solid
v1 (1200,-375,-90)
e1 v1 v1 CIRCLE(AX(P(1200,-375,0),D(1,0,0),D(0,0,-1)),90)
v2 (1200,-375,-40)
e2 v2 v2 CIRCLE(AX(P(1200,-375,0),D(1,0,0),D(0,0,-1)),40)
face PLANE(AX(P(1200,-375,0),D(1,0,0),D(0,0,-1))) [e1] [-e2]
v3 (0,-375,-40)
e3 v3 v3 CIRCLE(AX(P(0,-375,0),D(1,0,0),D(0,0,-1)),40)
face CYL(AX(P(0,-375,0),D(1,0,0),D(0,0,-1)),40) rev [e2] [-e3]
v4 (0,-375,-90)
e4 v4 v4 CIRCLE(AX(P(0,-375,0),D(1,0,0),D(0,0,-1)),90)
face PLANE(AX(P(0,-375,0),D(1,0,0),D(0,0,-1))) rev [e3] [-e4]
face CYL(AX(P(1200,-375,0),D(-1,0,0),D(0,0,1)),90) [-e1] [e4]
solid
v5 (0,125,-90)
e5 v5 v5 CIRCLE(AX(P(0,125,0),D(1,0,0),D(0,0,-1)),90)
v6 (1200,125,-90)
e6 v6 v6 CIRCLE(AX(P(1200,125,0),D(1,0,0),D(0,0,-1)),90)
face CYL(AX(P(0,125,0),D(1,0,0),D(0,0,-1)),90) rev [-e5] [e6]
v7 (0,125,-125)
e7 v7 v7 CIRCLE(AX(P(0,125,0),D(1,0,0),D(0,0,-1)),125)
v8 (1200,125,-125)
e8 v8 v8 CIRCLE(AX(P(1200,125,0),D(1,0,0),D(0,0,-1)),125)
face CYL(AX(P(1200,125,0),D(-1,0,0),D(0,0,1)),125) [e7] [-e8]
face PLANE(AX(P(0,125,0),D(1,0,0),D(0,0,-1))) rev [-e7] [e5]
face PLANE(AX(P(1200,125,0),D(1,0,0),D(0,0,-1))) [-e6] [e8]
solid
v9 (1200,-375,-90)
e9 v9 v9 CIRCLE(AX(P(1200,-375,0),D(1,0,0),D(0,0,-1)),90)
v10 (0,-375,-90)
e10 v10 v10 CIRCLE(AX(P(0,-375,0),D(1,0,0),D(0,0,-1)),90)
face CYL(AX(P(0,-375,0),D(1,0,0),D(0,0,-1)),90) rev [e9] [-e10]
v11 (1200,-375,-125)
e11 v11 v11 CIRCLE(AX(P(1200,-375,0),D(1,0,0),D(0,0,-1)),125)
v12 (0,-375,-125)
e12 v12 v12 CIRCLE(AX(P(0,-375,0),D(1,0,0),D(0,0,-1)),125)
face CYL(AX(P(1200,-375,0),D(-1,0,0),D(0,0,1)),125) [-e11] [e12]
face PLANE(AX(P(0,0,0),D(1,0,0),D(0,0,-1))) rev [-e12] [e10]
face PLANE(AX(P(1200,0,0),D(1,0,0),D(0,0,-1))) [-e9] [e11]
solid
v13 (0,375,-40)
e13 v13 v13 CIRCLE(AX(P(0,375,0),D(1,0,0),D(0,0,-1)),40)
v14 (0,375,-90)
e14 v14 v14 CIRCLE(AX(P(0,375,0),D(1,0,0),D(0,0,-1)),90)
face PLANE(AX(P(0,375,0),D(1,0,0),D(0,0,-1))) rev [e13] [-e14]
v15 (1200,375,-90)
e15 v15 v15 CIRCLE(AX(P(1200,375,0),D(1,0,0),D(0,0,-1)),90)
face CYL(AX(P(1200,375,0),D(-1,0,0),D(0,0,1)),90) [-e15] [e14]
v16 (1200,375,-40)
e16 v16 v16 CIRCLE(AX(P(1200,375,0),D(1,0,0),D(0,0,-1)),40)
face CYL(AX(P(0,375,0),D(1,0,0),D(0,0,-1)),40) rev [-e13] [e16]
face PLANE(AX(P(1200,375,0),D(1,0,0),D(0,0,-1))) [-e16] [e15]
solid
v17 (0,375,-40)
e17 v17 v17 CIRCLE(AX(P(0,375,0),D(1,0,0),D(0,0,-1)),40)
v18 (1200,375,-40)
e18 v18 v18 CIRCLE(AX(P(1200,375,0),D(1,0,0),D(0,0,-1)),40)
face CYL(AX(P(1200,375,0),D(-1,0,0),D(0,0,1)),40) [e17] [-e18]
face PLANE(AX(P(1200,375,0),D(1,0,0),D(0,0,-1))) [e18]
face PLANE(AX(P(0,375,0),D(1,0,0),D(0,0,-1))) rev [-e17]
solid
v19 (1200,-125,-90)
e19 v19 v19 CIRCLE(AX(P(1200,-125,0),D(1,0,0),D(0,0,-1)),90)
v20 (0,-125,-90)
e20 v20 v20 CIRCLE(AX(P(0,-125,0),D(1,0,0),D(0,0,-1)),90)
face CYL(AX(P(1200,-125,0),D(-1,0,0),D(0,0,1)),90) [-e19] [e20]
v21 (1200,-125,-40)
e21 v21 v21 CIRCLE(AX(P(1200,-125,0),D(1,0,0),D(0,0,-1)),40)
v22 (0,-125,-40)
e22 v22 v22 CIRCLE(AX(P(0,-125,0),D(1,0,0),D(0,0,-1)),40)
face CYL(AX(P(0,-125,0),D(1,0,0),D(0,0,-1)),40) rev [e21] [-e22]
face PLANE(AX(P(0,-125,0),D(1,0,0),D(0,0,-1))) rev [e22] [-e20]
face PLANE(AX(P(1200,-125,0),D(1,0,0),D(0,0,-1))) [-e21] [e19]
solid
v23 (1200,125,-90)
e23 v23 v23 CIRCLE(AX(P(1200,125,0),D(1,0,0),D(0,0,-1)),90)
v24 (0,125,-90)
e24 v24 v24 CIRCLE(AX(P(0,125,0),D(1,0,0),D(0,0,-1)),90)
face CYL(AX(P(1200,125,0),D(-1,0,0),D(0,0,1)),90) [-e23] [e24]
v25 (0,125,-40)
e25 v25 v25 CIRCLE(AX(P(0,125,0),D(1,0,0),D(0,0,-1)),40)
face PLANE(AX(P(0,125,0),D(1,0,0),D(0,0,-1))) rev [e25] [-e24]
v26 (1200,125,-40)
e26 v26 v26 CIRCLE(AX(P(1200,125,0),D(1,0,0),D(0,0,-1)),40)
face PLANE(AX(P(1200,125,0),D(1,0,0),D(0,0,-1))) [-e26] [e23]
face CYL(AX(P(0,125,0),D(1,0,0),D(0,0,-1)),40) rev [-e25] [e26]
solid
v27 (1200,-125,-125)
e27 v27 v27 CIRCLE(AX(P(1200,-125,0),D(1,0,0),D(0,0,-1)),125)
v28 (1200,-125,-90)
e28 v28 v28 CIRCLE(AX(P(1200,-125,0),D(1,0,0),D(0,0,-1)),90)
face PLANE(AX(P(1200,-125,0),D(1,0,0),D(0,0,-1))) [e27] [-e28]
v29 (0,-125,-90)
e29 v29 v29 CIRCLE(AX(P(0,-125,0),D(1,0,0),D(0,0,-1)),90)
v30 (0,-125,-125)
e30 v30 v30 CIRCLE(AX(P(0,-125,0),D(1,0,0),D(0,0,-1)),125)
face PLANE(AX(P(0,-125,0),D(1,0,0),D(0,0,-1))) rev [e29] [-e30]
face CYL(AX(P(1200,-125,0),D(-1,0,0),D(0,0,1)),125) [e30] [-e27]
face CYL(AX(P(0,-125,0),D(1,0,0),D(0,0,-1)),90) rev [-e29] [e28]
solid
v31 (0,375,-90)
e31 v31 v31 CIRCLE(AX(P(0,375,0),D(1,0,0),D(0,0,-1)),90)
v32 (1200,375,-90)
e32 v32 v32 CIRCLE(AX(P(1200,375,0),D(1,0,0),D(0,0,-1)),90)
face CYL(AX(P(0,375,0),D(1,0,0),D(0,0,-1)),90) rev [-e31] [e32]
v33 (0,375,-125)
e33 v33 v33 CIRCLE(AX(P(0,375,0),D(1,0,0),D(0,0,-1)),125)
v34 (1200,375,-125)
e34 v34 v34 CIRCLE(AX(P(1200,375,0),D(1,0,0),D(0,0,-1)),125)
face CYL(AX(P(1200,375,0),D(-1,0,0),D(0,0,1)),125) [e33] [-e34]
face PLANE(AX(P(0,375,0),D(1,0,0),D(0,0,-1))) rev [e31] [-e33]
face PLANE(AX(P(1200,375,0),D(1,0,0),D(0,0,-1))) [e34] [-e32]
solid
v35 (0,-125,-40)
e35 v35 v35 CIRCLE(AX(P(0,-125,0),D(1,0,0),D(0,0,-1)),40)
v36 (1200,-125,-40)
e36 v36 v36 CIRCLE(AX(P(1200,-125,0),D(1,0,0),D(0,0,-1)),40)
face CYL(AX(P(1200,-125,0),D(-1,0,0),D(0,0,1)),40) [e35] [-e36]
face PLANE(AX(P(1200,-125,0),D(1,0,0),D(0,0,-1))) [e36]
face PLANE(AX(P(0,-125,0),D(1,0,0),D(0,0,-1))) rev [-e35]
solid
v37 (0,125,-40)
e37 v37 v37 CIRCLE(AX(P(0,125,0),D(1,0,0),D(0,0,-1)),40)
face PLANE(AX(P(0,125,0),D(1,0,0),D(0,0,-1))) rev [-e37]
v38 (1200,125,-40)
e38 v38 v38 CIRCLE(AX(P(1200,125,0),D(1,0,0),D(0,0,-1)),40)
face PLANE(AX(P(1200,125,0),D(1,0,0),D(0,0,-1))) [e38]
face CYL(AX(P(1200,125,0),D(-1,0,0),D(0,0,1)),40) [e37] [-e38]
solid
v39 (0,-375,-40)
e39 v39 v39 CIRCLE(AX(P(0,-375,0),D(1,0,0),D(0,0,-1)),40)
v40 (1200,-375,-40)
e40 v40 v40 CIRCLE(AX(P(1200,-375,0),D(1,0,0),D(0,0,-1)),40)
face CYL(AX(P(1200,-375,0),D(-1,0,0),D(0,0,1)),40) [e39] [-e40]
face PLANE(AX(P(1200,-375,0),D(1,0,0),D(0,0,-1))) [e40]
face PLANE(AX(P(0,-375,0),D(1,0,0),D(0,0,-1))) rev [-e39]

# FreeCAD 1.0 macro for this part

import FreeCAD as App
import Part
import Sketcher
from FreeCAD import Vector
Q = App.Units.Quantity

doc = App.newDocument("Part")
body = doc.addObject("PartDesign::Body", "Body")

# Sketch on YZ plane
sketch1 = body.newObject("Sketcher::SketchObject", "Sketch")
sketch1.AttachmentSupport = (doc.getObject("YZ_Plane"), [""])
sketch1.MapMode = "FlatFace"
sketch1.addGeometry(Part.Circle(Vector(-375, 0, 0), Vector(0, 0, 1), 125), False)
sketch1.addConstraint(Sketcher.Constraint("PointOnObject", 0, 3, -1))
sketch1.addConstraint(Sketcher.Constraint("Diameter", 0, Q("250 mm")))
sketch1.addConstraint(Sketcher.Constraint("DistanceX", 0, 3, -1, 1, Q("375 mm")))
pad1 = body.newObject("PartDesign::Pad", "Pad")
pad1.Profile = sketch1
pad1.Length = 1200
body2 = doc.addObject("PartDesign::Body", "Body001")

# Sketch on YZ plane
sketch2 = body2.newObject("Sketcher::SketchObject", "Sketch001")
sketch2.AttachmentSupport = (doc.getObject("YZ_Plane001"), [""])
sketch2.MapMode = "FlatFace"
sketch2.addGeometry(Part.Circle(Vector(375, 0, 0), Vector(0, 0, 1), 125), False)
sketch2.addConstraint(Sketcher.Constraint("PointOnObject", 0, 3, -1))
sketch2.addConstraint(Sketcher.Constraint("Diameter", 0, Q("250 mm")))
sketch2.addConstraint(Sketcher.Constraint("DistanceX", -1, 1, 0, 3, Q("375 mm")))
pad2 = body2.newObject("PartDesign::Pad", "Pad001")
pad2.Profile = sketch2
pad2.Length = 1200
body3 = doc.addObject("PartDesign::Body", "Body002")

# Sketch on YZ plane
sketch3 = body3.newObject("Sketcher::SketchObject", "Sketch002")
sketch3.AttachmentSupport = (doc.getObject("YZ_Plane002"), [""])
sketch3.MapMode = "FlatFace"
sketch3.addGeometry(Part.Circle(Vector(125, 0, 0), Vector(0, 0, 1), 125), False)
sketch3.addConstraint(Sketcher.Constraint("PointOnObject", 0, 3, -1))
sketch3.addConstraint(Sketcher.Constraint("Diameter", 0, Q("250 mm")))
sketch3.addConstraint(Sketcher.Constraint("DistanceX", -1, 1, 0, 3, Q("125 mm")))
pad3 = body3.newObject("PartDesign::Pad", "Pad002")
pad3.Profile = sketch3
pad3.Length = 1200
body4 = doc.addObject("PartDesign::Body", "Body003")

# Sketch on YZ plane
sketch4 = body4.newObject("Sketcher::SketchObject", "Sketch003")
sketch4.AttachmentSupport = (doc.getObject("YZ_Plane003"), [""])
sketch4.MapMode = "FlatFace"
sketch4.addGeometry(Part.Circle(Vector(-125, 0, 0), Vector(0, 0, 1), 125), False)
sketch4.addConstraint(Sketcher.Constraint("PointOnObject", 0, 3, -1))
sketch4.addConstraint(Sketcher.Constraint("Diameter", 0, Q("250 mm")))
sketch4.addConstraint(Sketcher.Constraint("DistanceX", 0, 3, -1, 1, Q("125 mm")))
pad4 = body4.newObject("PartDesign::Pad", "Pad003")
pad4.Profile = sketch4
pad4.Length = 1200
body5 = doc.addObject("PartDesign::Body", "Body004")
body5.AllowCompound = True

# Sketch on YZ plane
sketch5 = body5.newObject("Sketcher::SketchObject", "Sketch004")
sketch5.AttachmentSupport = (doc.getObject("YZ_Plane004"), [""])
sketch5.MapMode = "FlatFace"
sketch5.AttachmentOffset = App.Placement(Vector(0, 0, 1200), App.Rotation())
sketch5.addGeometry(Part.Circle(Vector(375, 0, 0), Vector(0, 0, 1), 90), False)
sketch5.addGeometry(Part.Circle(Vector(125, 0, 0), Vector(0, 0, 1), 90), False)
sketch5.addGeometry(Part.Circle(Vector(-125, 0, 0), Vector(0, 0, 1), 90), False)
sketch5.addGeometry(Part.Circle(Vector(-375, 0, 0), Vector(0, 0, 1), 90), False)
sketch5.addConstraint(Sketcher.Constraint("Equal", 0, 1))
sketch5.addConstraint(Sketcher.Constraint("Equal", 1, 2))
sketch5.addConstraint(Sketcher.Constraint("Equal", 2, 3))
sketch5.addConstraint(Sketcher.Constraint("Symmetric", 1, 3, 2, 3, -1, 1))
sketch5.addConstraint(Sketcher.Constraint("Symmetric", 0, 3, 3, 3, -1, 1))
sketch5.addConstraint(Sketcher.Constraint("PointOnObject", 0, 3, -1))
sketch5.addConstraint(Sketcher.Constraint("PointOnObject", 1, 3, -1))
sketch5.addConstraint(Sketcher.Constraint("Diameter", 0, Q("180 mm")))
sketch5.addConstraint(Sketcher.Constraint("DistanceX", -1, 1, 0, 3, Q("375 mm")))
sketch5.addConstraint(Sketcher.Constraint("DistanceX", -1, 1, 1, 3, Q("125 mm")))
pad5 = body5.newObject("PartDesign::Pad", "Pad004")
pad5.Profile = sketch5
pad5.Length = 1306.995789
pad5.Reversed = True
doc.recompute()

body6 = doc.addObject("PartDesign::Body", "Body005")
body6.BaseFeature = body5
boolean = body.newObject("PartDesign::Boolean", "Boolean")
boolean.Type = "Cut"
boolean.addObjects([body6])
doc.recompute()

body7 = doc.addObject("PartDesign::Body", "Body006")
body7.BaseFeature = body5
boolean2 = body2.newObject("PartDesign::Boolean", "Boolean001")
boolean2.Type = "Cut"
boolean2.addObjects([body7])
doc.recompute()

body8 = doc.addObject("PartDesign::Body", "Body007")
body8.BaseFeature = body5
boolean3 = body3.newObject("PartDesign::Boolean", "Boolean002")
boolean3.Type = "Cut"
boolean3.addObjects([body8])
doc.recompute()

boolean4 = body4.newObject("PartDesign::Boolean", "Boolean003")
boolean4.Type = "Cut"
boolean4.addObjects([body5])
body9 = doc.addObject("PartDesign::Body", "Body008")

# Sketch on YZ plane
sketch6 = body9.newObject("Sketcher::SketchObject", "Sketch005")
sketch6.AttachmentSupport = (doc.getObject("YZ_Plane008"), [""])
sketch6.MapMode = "FlatFace"
sketch6.addGeometry(Part.Circle(Vector(375, 0, 0), Vector(0, 0, 1), 90), False)
sketch6.addConstraint(Sketcher.Constraint("PointOnObject", 0, 3, -1))
sketch6.addConstraint(Sketcher.Constraint("Diameter", 0, Q("180 mm")))
sketch6.addConstraint(Sketcher.Constraint("DistanceX", -1, 1, 0, 3, Q("375 mm")))
pad6 = body9.newObject("PartDesign::Pad", "Pad005")
pad6.Profile = sketch6
pad6.Length = 1200
body10 = doc.addObject("PartDesign::Body", "Body009")

# Sketch on YZ plane
sketch7 = body10.newObject("Sketcher::SketchObject", "Sketch006")
sketch7.AttachmentSupport = (doc.getObject("YZ_Plane009"), [""])
sketch7.MapMode = "FlatFace"
sketch7.addGeometry(Part.Circle(Vector(125, 0, 0), Vector(0, 0, 1), 90), False)
sketch7.addConstraint(Sketcher.Constraint("PointOnObject", 0, 3, -1))
sketch7.addConstraint(Sketcher.Constraint("Diameter", 0, Q("180 mm")))
sketch7.addConstraint(Sketcher.Constraint("DistanceX", -1, 1, 0, 3, Q("125 mm")))
pad7 = body10.newObject("PartDesign::Pad", "Pad006")
pad7.Profile = sketch7
pad7.Length = 1200
body11 = doc.addObject("PartDesign::Body", "Body010")

# Sketch on YZ plane
sketch8 = body11.newObject("Sketcher::SketchObject", "Sketch007")
sketch8.AttachmentSupport = (doc.getObject("YZ_Plane010"), [""])
sketch8.MapMode = "FlatFace"
sketch8.addGeometry(Part.Circle(Vector(-125, 0, 0), Vector(0, 0, 1), 90), False)
sketch8.addConstraint(Sketcher.Constraint("PointOnObject", 0, 3, -1))
sketch8.addConstraint(Sketcher.Constraint("Diameter", 0, Q("180 mm")))
sketch8.addConstraint(Sketcher.Constraint("DistanceX", 0, 3, -1, 1, Q("125 mm")))
pad8 = body11.newObject("PartDesign::Pad", "Pad007")
pad8.Profile = sketch8
pad8.Length = 1200
body12 = doc.addObject("PartDesign::Body", "Body011")

# Sketch on YZ plane
sketch9 = body12.newObject("Sketcher::SketchObject", "Sketch008")
sketch9.AttachmentSupport = (doc.getObject("YZ_Plane011"), [""])
sketch9.MapMode = "FlatFace"
sketch9.addGeometry(Part.Circle(Vector(-375, 0, 0), Vector(0, 0, 1), 90), False)
sketch9.addConstraint(Sketcher.Constraint("PointOnObject", 0, 3, -1))
sketch9.addConstraint(Sketcher.Constraint("Diameter", 0, Q("180 mm")))
sketch9.addConstraint(Sketcher.Constraint("DistanceX", 0, 3, -1, 1, Q("375 mm")))
pad9 = body12.newObject("PartDesign::Pad", "Pad008")
pad9.Profile = sketch9
pad9.Length = 1200
body13 = doc.addObject("PartDesign::Body", "Body012")
body13.AllowCompound = True

# Sketch on YZ plane
sketch10 = body13.newObject("Sketcher::SketchObject", "Sketch009")
sketch10.AttachmentSupport = (doc.getObject("YZ_Plane012"), [""])
sketch10.MapMode = "FlatFace"
sketch10.AttachmentOffset = App.Placement(Vector(0, 0, 1200), App.Rotation())
sketch10.addGeometry(Part.Circle(Vector(375, 0, 0), Vector(0, 0, 1), 40), False)
sketch10.addGeometry(Part.Circle(Vector(125, 0, 0), Vector(0, 0, 1), 40), False)
sketch10.addGeometry(Part.Circle(Vector(-125, 0, 0), Vector(0, 0, 1), 40), False)
sketch10.addGeometry(Part.Circle(Vector(-375, 0, 0), Vector(0, 0, 1), 40), False)
sketch10.addConstraint(Sketcher.Constraint("Equal", 0, 1))
sketch10.addConstraint(Sketcher.Constraint("Equal", 1, 2))
sketch10.addConstraint(Sketcher.Constraint("Equal", 2, 3))
sketch10.addConstraint(Sketcher.Constraint("Symmetric", 1, 3, 2, 3, -1, 1))
sketch10.addConstraint(Sketcher.Constraint("Symmetric", 0, 3, 3, 3, -1, 1))
sketch10.addConstraint(Sketcher.Constraint("PointOnObject", 0, 3, -1))
sketch10.addConstraint(Sketcher.Constraint("PointOnObject", 1, 3, -1))
sketch10.addConstraint(Sketcher.Constraint("Diameter", 0, Q("80 mm")))
sketch10.addConstraint(Sketcher.Constraint("DistanceX", -1, 1, 0, 3, Q("375 mm")))
sketch10.addConstraint(Sketcher.Constraint("DistanceX", -1, 1, 1, 3, Q("125 mm")))
pad10 = body13.newObject("PartDesign::Pad", "Pad009")
pad10.Profile = sketch10
pad10.Length = 1306.995789
pad10.Reversed = True
doc.recompute()

body14 = doc.addObject("PartDesign::Body", "Body013")
body14.BaseFeature = body13
boolean5 = body9.newObject("PartDesign::Boolean", "Boolean004")
boolean5.Type = "Cut"
boolean5.addObjects([body14])
doc.recompute()

body15 = doc.addObject("PartDesign::Body", "Body014")
body15.BaseFeature = body13
boolean6 = body10.newObject("PartDesign::Boolean", "Boolean005")
boolean6.Type = "Cut"
boolean6.addObjects([body15])
doc.recompute()

body16 = doc.addObject("PartDesign::Body", "Body015")
body16.BaseFeature = body13
boolean7 = body11.newObject("PartDesign::Boolean", "Boolean006")
boolean7.Type = "Cut"
boolean7.addObjects([body16])
doc.recompute()

boolean8 = body12.newObject("PartDesign::Boolean", "Boolean007")
boolean8.Type = "Cut"
boolean8.addObjects([body13])
body17 = doc.addObject("PartDesign::Body", "Body016")

# Sketch on YZ plane
sketch11 = body17.newObject("Sketcher::SketchObject", "Sketch010")
sketch11.AttachmentSupport = (doc.getObject("YZ_Plane016"), [""])
sketch11.MapMode = "FlatFace"
sketch11.addGeometry(Part.Circle(Vector(375, 0, 0), Vector(0, 0, 1), 40), False)
sketch11.addConstraint(Sketcher.Constraint("PointOnObject", 0, 3, -1))
sketch11.addConstraint(Sketcher.Constraint("Diameter", 0, Q("80 mm")))
sketch11.addConstraint(Sketcher.Constraint("DistanceX", -1, 1, 0, 3, Q("375 mm")))
pad11 = body17.newObject("PartDesign::Pad", "Pad010")
pad11.Profile = sketch11
pad11.Length = 1200
body18 = doc.addObject("PartDesign::Body", "Body017")

# Sketch on YZ plane
sketch12 = body18.newObject("Sketcher::SketchObject", "Sketch011")
sketch12.AttachmentSupport = (doc.getObject("YZ_Plane017"), [""])
sketch12.MapMode = "FlatFace"
sketch12.addGeometry(Part.Circle(Vector(125, 0, 0), Vector(0, 0, 1), 40), False)
sketch12.addConstraint(Sketcher.Constraint("PointOnObject", 0, 3, -1))
sketch12.addConstraint(Sketcher.Constraint("Diameter", 0, Q("80 mm")))
sketch12.addConstraint(Sketcher.Constraint("DistanceX", -1, 1, 0, 3, Q("125 mm")))
pad12 = body18.newObject("PartDesign::Pad", "Pad011")
pad12.Profile = sketch12
pad12.Length = 1200
body19 = doc.addObject("PartDesign::Body", "Body018")

# Sketch on YZ plane
sketch13 = body19.newObject("Sketcher::SketchObject", "Sketch012")
sketch13.AttachmentSupport = (doc.getObject("YZ_Plane018"), [""])
sketch13.MapMode = "FlatFace"
sketch13.addGeometry(Part.Circle(Vector(-125, 0, 0), Vector(0, 0, 1), 40), False)
sketch13.addConstraint(Sketcher.Constraint("PointOnObject", 0, 3, -1))
sketch13.addConstraint(Sketcher.Constraint("Diameter", 0, Q("80 mm")))
sketch13.addConstraint(Sketcher.Constraint("DistanceX", 0, 3, -1, 1, Q("125 mm")))
pad13 = body19.newObject("PartDesign::Pad", "Pad012")
pad13.Profile = sketch13
pad13.Length = 1200
body20 = doc.addObject("PartDesign::Body", "Body019")

# Sketch on YZ plane
sketch14 = body20.newObject("Sketcher::SketchObject", "Sketch013")
sketch14.AttachmentSupport = (doc.getObject("YZ_Plane019"), [""])
sketch14.MapMode = "FlatFace"
sketch14.addGeometry(Part.Circle(Vector(-375, 0, 0), Vector(0, 0, 1), 40), False)
sketch14.addConstraint(Sketcher.Constraint("PointOnObject", 0, 3, -1))
sketch14.addConstraint(Sketcher.Constraint("Diameter", 0, Q("80 mm")))
sketch14.addConstraint(Sketcher.Constraint("DistanceX", 0, 3, -1, 1, Q("375 mm")))
pad14 = body20.newObject("PartDesign::Pad", "Pad013")
pad14.Profile = sketch14
pad14.Length = 1200

doc.recompute()
